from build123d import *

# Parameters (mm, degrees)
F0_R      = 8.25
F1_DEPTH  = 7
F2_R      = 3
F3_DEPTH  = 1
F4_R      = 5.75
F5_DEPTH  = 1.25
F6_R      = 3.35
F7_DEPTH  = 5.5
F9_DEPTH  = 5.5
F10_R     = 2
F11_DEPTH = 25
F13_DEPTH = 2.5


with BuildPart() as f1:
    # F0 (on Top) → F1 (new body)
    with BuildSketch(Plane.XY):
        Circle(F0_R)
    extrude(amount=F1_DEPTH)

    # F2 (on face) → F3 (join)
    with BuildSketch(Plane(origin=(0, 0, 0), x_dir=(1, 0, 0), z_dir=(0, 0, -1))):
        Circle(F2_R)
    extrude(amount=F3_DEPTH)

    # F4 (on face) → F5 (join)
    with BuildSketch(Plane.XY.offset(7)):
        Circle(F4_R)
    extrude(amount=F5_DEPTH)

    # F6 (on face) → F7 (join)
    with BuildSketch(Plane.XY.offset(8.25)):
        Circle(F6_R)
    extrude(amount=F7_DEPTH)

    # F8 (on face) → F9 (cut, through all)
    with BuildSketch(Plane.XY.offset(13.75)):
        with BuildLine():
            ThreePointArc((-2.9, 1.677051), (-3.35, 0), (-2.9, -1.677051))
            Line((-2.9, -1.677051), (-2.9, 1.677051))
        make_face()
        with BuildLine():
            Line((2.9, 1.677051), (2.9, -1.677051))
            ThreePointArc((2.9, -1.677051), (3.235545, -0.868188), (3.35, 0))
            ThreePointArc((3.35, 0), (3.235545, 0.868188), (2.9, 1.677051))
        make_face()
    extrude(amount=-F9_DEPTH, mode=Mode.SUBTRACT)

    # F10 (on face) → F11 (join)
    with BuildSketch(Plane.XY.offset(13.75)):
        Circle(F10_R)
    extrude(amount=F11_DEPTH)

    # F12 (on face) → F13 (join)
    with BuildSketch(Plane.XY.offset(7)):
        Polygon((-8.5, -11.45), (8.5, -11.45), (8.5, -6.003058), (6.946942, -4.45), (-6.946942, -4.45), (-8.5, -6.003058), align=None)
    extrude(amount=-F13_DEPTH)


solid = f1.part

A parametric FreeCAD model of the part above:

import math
import FreeCAD as App
import Part
import Sketcher

V = App.Vector
Q = App.Units.Quantity

doc = App.newDocument("Part")
body = doc.addObject("PartDesign::Body", "Body")

sketch1 = doc.addObject("Sketcher::SketchObject", "Sketch")
body.addObject(sketch1)
sketch1.AttachmentSupport = (doc.XY_Plane, [""])
sketch1.MapMode = "FlatFace"
sketch1.addGeometry(Part.Circle(V(0, 0, 0), V(0, 0, 1), 8.25), False)
sketch1.addConstraint(Sketcher.Constraint("Coincident", 0, 3, -1, 1))
sketch1.addConstraint(Sketcher.Constraint("Diameter", 0, Q("16.5 mm")))
pad1 = doc.addObject("PartDesign::Pad", "Pad")
body.addObject(pad1)
pad1.Profile = sketch1
pad1.Length = 7

sketch2 = doc.addObject("Sketcher::SketchObject", "Sketch001")
body.addObject(sketch2)
sketch2.AttachmentSupport = (doc.XY_Plane, [""])
sketch2.MapMode = "FlatFace"
sketch2.addGeometry(Part.Circle(V(0, 0, 0), V(0, 0, 1), 3), False)
sketch2.addConstraint(Sketcher.Constraint("Coincident", 0, 3, -1, 1))
sketch2.addConstraint(Sketcher.Constraint("Diameter", 0, Q("6 mm")))
pad2 = doc.addObject("PartDesign::Pad", "Pad001")
body.addObject(pad2)
pad2.Profile = sketch2
pad2.Length = 1
pad2.Reversed = True

sketch3 = doc.addObject("Sketcher::SketchObject", "Sketch002")
body.addObject(sketch3)
sketch3.AttachmentSupport = (doc.XY_Plane, [""])
sketch3.MapMode = "FlatFace"
sketch3.AttachmentOffset = App.Placement(V(0, 0, 7), App.Rotation())
sketch3.addGeometry(Part.Circle(V(0, 0, 0), V(0, 0, 1), 5.75), False)
sketch3.addConstraint(Sketcher.Constraint("Coincident", 0, 3, -1, 1))
sketch3.addConstraint(Sketcher.Constraint("Diameter", 0, Q("11.5 mm")))
pad3 = doc.addObject("PartDesign::Pad", "Pad002")
body.addObject(pad3)
pad3.Profile = sketch3
pad3.Length = 1.25

sketch4 = doc.addObject("Sketcher::SketchObject", "Sketch003")
body.addObject(sketch4)
sketch4.AttachmentSupport = (doc.XY_Plane, [""])
sketch4.MapMode = "FlatFace"
sketch4.AttachmentOffset = App.Placement(V(0, 0, 8.25), App.Rotation())
sketch4.addGeometry(Part.Circle(V(0, 0, 0), V(0, 0, 1), 3.35), False)
sketch4.addConstraint(Sketcher.Constraint("Coincident", 0, 3, -1, 1))
sketch4.addConstraint(Sketcher.Constraint("Diameter", 0, Q("6.7 mm")))
pad4 = doc.addObject("PartDesign::Pad", "Pad003")
body.addObject(pad4)
pad4.Profile = sketch4
pad4.Length = 5.5

sketch5 = doc.addObject("Sketcher::SketchObject", "Sketch004")
body.addObject(sketch5)
sketch5.AttachmentSupport = (doc.XY_Plane, [""])
sketch5.MapMode = "FlatFace"
sketch5.AttachmentOffset = App.Placement(V(0, 0, 13.75), App.Rotation())
sketch5.addGeometry(Part.ArcOfCircle(Part.Circle(V(0, 0, 0), V(0, 0, 1), 3.35), math.radians(149.959487), math.radians(210.040513)), False)
sketch5.addGeometry(Part.LineSegment(V(-2.9, -1.677051, 0), V(-2.9, 1.677051, 0)), False)
sketch5.addGeometry(Part.LineSegment(V(2.9, 1.677051, 0), V(2.9, -1.677051, 0)), False)
sketch5.addGeometry(Part.ArcOfCircle(Part.Circle(V(0.000008, -0.000002, 0), V(0, 0, 1), 3.349992), math.radians(-30.040549), math.radians(0.000036)), False)
sketch5.addGeometry(Part.ArcOfCircle(Part.Circle(V(0.000008, 0.000002, 0), V(0, 0, 1), 3.349992), math.radians(-0.000036), math.radians(30.040549)), False)
sketch5.addConstraint(Sketcher.Constraint("Coincident", 0, 1, 1, 2))
sketch5.addConstraint(Sketcher.Constraint("Coincident", 1, 1, 0, 2))
sketch5.addConstraint(Sketcher.Constraint("Coincident", 2, 2, 3, 1))
sketch5.addConstraint(Sketcher.Constraint("Tangent", 3, 2, 4, 1))
sketch5.addConstraint(Sketcher.Constraint("Coincident", 4, 2, 2, 1))
sketch5.addConstraint(Sketcher.Constraint("Vertical", 1))
sketch5.addConstraint(Sketcher.Constraint("Vertical", 2))
sketch5.addConstraint(Sketcher.Constraint("Coincident", 0, 3, -1, 1))
sketch5.addConstraint(Sketcher.Constraint("Coincident", 3, 3, -1, 1))
sketch5.addConstraint(Sketcher.Constraint("Equal", 3, 4))
sketch5.addConstraint(Sketcher.Constraint("Symmetric", 0, 1, 2, 2, -1, 1))
sketch5.addConstraint(Sketcher.Constraint("PointOnObject", 3, 2, -1))
sketch5.addConstraint(Sketcher.Constraint("Radius", 0, Q("3.35 mm")))
sketch5.addConstraint(Sketcher.Constraint("DistanceX", 0, 1, -1, 1, Q("2.9 mm")))
pocket1 = doc.addObject("PartDesign::Pocket", "Pocket")
body.addObject(pocket1)
pocket1.Profile = sketch5
pocket1.Length = 5.5

sketch6 = doc.addObject("Sketcher::SketchObject", "Sketch005")
body.addObject(sketch6)
sketch6.AttachmentSupport = (doc.XY_Plane, [""])
sketch6.MapMode = "FlatFace"
sketch6.AttachmentOffset = App.Placement(V(0, 0, 13.75), App.Rotation())
sketch6.addGeometry(Part.Circle(V(0, 0, 0), V(0, 0, 1), 2), False)
sketch6.addConstraint(Sketcher.Constraint("Coincident", 0, 3, -1, 1))
sketch6.addConstraint(Sketcher.Constraint("Diameter", 0, Q("4 mm")))
pad5 = doc.addObject("PartDesign::Pad", "Pad004")
body.addObject(pad5)
pad5.Profile = sketch6
pad5.Length = 25

sketch7 = doc.addObject("Sketcher::SketchObject", "Sketch006")
body.addObject(sketch7)
sketch7.AttachmentSupport = (doc.XY_Plane, [""])
sketch7.MapMode = "FlatFace"
sketch7.AttachmentOffset = App.Placement(V(0, 0, 7), App.Rotation())
sketch7.addGeometry(Part.LineSegment(V(-8.5, -11.45, 0), V(8.5, -11.45, 0)), False)
sketch7.addGeometry(Part.LineSegment(V(8.5, -11.45, 0), V(8.5, -6.003058, 0)), False)
sketch7.addGeometry(Part.LineSegment(V(8.5, -6.003058, 0), V(6.946942, -4.45, 0)), False)
sketch7.addGeometry(Part.LineSegment(V(6.946942, -4.45, 0), V(-6.946942, -4.45, 0)), False)
sketch7.addGeometry(Part.LineSegment(V(-6.946942, -4.45, 0), V(-8.5, -6.003058, 0)), False)
sketch7.addGeometry(Part.LineSegment(V(-8.5, -6.003058, 0), V(-8.5, -11.45, 0)), False)
sketch7.addConstraint(Sketcher.Constraint("Coincident", 0, 2, 1, 1))
sketch7.addConstraint(Sketcher.Constraint("Coincident", 1, 2, 2, 1))
sketch7.addConstraint(Sketcher.Constraint("Coincident", 2, 2, 3, 1))
sketch7.addConstraint(Sketcher.Constraint("Coincident", 3, 2, 4, 1))
sketch7.addConstraint(Sketcher.Constraint("Coincident", 4, 2, 5, 1))
sketch7.addConstraint(Sketcher.Constraint("Coincident", 5, 2, 0, 1))
sketch7.addConstraint(Sketcher.Constraint("Horizontal", 0))
sketch7.addConstraint(Sketcher.Constraint("Vertical", 1))
sketch7.addConstraint(Sketcher.Constraint("Horizontal", 3))
sketch7.addConstraint(Sketcher.Constraint("Vertical", 5))
sketch7.addConstraint(Sketcher.Constraint("Symmetric", 1, 2, 4, 2, -2))
sketch7.addConstraint(Sketcher.Constraint("Perpendicular", 2, 4))
sketch7.addConstraint(Sketcher.Constraint("Equal", 2, 4))
sketch7.addConstraint(Sketcher.Constraint("DistanceX", 0, 1, 0, 2, Q("17 mm")))
sketch7.addConstraint(Sketcher.Constraint("DistanceY", 0, 2, 2, 2, Q("7 mm")))
sketch7.addConstraint(Sketcher.Constraint("DistanceY", 0, 2, -1, 1, Q("11.45 mm")))
sketch7.addConstraint(Sketcher.Constraint("DistanceY", 1, 1, 1, 2, Q("5.446942 mm")))
pad6 = doc.addObject("PartDesign::Pad", "Pad005")
body.addObject(pad6)
pad6.Profile = sketch7
pad6.Length = 2.5
pad6.Reversed = True

doc.recompute()
